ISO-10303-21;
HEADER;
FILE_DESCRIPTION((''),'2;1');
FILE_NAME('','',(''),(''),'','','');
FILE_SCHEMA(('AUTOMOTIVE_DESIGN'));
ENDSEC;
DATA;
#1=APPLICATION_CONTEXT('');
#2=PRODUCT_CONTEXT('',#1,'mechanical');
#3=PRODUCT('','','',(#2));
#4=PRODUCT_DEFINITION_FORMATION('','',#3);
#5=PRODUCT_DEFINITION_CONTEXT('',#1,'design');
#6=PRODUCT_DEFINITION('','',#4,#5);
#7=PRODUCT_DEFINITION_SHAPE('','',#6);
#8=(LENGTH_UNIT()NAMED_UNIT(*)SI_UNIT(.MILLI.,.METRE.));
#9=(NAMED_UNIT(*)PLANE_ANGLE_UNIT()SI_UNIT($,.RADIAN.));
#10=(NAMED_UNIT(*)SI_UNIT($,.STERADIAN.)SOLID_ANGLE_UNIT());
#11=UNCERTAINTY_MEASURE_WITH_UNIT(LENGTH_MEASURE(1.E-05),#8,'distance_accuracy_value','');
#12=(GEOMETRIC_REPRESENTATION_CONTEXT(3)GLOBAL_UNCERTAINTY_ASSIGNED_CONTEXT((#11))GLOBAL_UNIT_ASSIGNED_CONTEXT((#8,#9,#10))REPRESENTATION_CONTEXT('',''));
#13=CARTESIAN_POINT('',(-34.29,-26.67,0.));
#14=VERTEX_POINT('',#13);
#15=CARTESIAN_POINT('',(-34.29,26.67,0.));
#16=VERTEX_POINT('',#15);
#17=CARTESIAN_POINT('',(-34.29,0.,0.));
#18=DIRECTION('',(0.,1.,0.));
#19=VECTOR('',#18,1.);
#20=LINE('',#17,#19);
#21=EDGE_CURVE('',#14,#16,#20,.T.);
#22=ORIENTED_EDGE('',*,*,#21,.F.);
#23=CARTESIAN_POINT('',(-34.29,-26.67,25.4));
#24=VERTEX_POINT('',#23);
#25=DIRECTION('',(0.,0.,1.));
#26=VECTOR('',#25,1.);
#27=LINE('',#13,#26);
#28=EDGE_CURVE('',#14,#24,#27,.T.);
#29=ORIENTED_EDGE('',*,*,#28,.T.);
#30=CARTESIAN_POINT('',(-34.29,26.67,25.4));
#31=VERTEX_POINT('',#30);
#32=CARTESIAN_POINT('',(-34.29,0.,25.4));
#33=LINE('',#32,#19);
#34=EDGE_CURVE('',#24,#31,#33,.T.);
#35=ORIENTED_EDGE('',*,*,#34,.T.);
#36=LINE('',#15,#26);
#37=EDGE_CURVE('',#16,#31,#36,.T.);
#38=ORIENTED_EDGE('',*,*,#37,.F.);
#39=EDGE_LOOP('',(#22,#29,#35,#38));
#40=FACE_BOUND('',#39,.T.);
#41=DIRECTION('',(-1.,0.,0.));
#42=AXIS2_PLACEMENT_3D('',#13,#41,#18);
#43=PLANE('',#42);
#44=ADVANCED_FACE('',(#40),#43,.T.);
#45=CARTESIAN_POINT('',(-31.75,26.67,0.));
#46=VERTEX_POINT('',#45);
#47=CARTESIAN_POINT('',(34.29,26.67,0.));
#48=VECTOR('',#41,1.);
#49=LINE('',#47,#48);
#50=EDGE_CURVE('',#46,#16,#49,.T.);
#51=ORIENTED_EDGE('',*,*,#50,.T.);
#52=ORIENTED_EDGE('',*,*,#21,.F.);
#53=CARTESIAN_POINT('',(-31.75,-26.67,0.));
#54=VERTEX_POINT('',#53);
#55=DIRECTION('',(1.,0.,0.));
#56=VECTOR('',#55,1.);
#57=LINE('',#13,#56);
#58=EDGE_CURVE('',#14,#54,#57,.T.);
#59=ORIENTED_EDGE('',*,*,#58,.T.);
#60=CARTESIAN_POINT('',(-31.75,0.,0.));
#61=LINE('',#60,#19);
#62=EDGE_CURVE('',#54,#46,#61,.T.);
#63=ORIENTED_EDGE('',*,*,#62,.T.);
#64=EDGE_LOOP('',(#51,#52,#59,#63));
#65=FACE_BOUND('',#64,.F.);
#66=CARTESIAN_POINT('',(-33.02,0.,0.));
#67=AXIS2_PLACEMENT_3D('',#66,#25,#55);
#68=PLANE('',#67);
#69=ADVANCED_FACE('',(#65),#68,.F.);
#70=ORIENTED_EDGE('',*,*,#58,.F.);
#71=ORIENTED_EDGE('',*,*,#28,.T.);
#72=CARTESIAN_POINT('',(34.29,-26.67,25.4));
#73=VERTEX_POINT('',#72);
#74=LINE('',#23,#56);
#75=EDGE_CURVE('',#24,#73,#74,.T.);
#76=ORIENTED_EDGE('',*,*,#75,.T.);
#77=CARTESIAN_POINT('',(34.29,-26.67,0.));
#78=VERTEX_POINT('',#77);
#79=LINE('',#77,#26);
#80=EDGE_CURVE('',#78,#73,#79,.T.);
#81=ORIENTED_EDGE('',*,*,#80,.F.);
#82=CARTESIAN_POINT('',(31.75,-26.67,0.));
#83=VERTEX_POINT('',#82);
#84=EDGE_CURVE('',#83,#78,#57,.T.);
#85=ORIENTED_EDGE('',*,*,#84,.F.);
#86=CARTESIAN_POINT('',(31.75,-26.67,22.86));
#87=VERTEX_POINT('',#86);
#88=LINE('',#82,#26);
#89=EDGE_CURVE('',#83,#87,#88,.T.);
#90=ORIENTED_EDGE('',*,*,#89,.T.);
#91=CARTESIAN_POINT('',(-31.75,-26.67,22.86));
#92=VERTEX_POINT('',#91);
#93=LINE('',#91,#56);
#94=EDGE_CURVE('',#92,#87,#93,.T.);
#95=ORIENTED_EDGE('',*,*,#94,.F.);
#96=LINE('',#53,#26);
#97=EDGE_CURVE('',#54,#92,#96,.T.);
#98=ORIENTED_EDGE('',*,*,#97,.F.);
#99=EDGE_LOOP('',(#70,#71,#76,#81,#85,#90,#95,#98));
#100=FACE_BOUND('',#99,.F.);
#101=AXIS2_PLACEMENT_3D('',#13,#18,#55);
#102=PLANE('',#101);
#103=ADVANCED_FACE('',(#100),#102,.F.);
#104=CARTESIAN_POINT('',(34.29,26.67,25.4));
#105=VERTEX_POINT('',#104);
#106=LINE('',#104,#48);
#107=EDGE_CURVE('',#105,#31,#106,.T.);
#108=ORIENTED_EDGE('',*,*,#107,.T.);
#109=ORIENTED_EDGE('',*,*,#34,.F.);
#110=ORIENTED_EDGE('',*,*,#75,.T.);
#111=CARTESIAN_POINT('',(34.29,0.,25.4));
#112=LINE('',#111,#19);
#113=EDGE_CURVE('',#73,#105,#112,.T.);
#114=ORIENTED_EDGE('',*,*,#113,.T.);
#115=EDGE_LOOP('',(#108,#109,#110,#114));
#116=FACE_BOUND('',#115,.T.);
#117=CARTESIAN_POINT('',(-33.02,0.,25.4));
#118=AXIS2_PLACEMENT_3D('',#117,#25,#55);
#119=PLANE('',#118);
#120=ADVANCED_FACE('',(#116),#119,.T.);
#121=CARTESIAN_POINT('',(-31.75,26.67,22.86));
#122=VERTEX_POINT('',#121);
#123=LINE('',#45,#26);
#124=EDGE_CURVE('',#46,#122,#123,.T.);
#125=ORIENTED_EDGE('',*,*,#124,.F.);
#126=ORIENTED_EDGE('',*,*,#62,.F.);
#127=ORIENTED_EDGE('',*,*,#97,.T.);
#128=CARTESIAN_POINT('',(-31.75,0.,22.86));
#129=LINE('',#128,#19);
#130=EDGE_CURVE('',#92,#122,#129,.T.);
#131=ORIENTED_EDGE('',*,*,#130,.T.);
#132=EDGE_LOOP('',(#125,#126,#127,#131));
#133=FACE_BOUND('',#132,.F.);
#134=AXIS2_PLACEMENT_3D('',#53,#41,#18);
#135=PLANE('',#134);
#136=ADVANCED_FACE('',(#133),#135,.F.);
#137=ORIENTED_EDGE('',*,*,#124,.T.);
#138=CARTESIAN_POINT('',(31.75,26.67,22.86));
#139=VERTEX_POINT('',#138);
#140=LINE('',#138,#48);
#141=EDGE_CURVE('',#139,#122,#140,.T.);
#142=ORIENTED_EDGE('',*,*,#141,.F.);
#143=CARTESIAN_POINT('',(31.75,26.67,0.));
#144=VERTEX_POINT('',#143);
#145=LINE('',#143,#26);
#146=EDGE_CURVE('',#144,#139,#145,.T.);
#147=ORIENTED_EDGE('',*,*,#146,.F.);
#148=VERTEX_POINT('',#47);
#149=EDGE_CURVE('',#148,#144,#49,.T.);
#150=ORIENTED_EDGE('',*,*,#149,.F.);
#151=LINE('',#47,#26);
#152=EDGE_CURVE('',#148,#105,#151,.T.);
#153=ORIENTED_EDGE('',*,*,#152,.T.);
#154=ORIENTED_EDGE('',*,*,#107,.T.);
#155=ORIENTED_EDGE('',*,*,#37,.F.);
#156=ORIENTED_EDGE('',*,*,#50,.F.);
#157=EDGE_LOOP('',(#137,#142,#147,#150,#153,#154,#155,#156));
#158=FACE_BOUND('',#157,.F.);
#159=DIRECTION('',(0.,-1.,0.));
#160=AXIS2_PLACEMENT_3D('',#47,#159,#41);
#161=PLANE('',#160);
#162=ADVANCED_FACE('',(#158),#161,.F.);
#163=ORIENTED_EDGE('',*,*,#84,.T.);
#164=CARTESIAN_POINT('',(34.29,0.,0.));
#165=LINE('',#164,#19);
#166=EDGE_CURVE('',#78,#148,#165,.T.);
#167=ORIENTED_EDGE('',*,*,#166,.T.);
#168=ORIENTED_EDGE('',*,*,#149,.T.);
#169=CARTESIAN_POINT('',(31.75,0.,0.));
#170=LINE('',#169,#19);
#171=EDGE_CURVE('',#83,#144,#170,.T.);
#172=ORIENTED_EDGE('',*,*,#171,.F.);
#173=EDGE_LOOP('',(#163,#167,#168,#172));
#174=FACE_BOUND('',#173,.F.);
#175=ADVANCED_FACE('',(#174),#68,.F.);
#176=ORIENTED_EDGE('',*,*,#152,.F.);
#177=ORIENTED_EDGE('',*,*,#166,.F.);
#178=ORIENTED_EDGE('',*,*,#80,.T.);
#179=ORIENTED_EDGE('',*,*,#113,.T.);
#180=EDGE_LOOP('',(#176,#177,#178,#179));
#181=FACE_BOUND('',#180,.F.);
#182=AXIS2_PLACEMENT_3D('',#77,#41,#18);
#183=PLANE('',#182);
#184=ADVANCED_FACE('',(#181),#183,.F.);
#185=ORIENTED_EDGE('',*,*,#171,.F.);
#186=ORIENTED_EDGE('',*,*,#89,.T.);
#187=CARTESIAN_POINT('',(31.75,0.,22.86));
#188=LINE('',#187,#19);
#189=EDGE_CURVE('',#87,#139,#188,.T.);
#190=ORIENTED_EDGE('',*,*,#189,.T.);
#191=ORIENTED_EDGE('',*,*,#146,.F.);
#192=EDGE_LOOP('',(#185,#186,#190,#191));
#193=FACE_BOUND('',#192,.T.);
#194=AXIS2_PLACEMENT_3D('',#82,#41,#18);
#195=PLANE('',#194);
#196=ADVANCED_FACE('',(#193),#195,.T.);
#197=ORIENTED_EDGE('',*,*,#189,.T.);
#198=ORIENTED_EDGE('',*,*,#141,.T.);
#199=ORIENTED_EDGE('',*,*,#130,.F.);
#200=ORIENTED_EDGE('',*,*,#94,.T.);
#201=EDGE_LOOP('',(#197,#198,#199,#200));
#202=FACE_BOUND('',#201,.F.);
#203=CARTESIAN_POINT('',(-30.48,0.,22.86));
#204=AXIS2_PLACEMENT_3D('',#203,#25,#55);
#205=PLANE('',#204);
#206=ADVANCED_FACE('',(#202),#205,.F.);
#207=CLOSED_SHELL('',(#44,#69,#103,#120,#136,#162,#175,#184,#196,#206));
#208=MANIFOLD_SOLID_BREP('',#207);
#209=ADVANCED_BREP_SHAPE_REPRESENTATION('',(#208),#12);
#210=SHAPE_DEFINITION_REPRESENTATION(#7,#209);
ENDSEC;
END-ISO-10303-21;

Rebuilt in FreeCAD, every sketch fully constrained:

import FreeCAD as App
import Part
import Sketcher

V = App.Vector
Q = App.Units.Quantity

doc = App.newDocument("Part")
body = doc.addObject("PartDesign::Body", "Body")

# Sketch on XY plane
sketch1 = body.newObject("Sketcher::SketchObject", "Sketch")
sketch1.AttachmentSupport = (doc.getObject("XY_Plane"), [""])
sketch1.MapMode = "FlatFace"
sketch1.addGeometry(Part.LineSegment(V(-34, 27, 0), V(-34, -27, 0)), False)
sketch1.addGeometry(Part.LineSegment(V(-34, -27, 0), V(34, -27, 0)), False)
sketch1.addGeometry(Part.LineSegment(V(34, -27, 0), V(34, 27, 0)), False)
sketch1.addGeometry(Part.LineSegment(V(34, 27, 0), V(-34, 27, 0)), False)
sketch1.addConstraint(Sketcher.Constraint("Coincident", 0, 2, 1, 1))
sketch1.addConstraint(Sketcher.Constraint("Coincident", 1, 2, 2, 1))
sketch1.addConstraint(Sketcher.Constraint("Coincident", 2, 2, 3, 1))
sketch1.addConstraint(Sketcher.Constraint("Coincident", 3, 2, 0, 1))
sketch1.addConstraint(Sketcher.Constraint("Vertical", 0))
sketch1.addConstraint(Sketcher.Constraint("Horizontal", 1))
sketch1.addConstraint(Sketcher.Constraint("Vertical", 2))
sketch1.addConstraint(Sketcher.Constraint("Horizontal", 3))
sketch1.addConstraint(Sketcher.Constraint("Symmetric", 0, 2, 2, 2, -1, 1))
sketch1.addConstraint(Sketcher.Constraint("DistanceX", 1, 1, 1, 2, Q("2.7 in")))
sketch1.addConstraint(Sketcher.Constraint("DistanceY", 0, 2, 0, 1, Q("2.1 in")))
pad1 = body.newObject("PartDesign::Pad", "Pad")
pad1.Profile = sketch1
pad1.Length = Q("1 in")

# Sketch on XY plane
sketch2 = body.newObject("Sketcher::SketchObject", "Sketch001")
sketch2.AttachmentSupport = (doc.getObject("XY_Plane"), [""])
sketch2.MapMode = "FlatFace"
sketch2.addGeometry(Part.LineSegment(V(-31.8, 26.7, 0), V(-31.8, -26.7, 0)), False)
sketch2.addGeometry(Part.LineSegment(V(-31.8, -26.7, 0), V(-29.2, -26.7, 0)), False)
sketch2.addGeometry(Part.LineSegment(V(-29.2, -26.7, 0), V(-29.2, 26.7, 0)), False)
sketch2.addGeometry(Part.LineSegment(V(-29.2, 26.7, 0), V(-31.8, 26.7, 0)), False)
sketch2.addGeometry(Part.LineSegment(V(29.2, 26.7, 0), V(29.2, -26.7, 0)), False)
sketch2.addGeometry(Part.LineSegment(V(29.2, -26.7, 0), V(31.8, -26.7, 0)), False)
sketch2.addGeometry(Part.LineSegment(V(31.8, -26.7, 0), V(31.8, 26.7, 0)), False)
sketch2.addGeometry(Part.LineSegment(V(31.8, 26.7, 0), V(29.2, 26.7, 0)), False)
sketch2.addConstraint(Sketcher.Constraint("Coincident", 0, 2, 1, 1))
sketch2.addConstraint(Sketcher.Constraint("Coincident", 1, 2, 2, 1))
sketch2.addConstraint(Sketcher.Constraint("Coincident", 2, 2, 3, 1))
sketch2.addConstraint(Sketcher.Constraint("Coincident", 3, 2, 0, 1))
sketch2.addConstraint(Sketcher.Constraint("Coincident", 4, 2, 5, 1))
sketch2.addConstraint(Sketcher.Constraint("Coincident", 5, 2, 6, 1))
sketch2.addConstraint(Sketcher.Constraint("Coincident", 6, 2, 7, 1))
sketch2.addConstraint(Sketcher.Constraint("Coincident", 7, 2, 4, 1))
sketch2.addConstraint(Sketcher.Constraint("Vertical", 0))
sketch2.addConstraint(Sketcher.Constraint("Horizontal", 1))
sketch2.addConstraint(Sketcher.Constraint("Vertical", 2))
sketch2.addConstraint(Sketcher.Constraint("Horizontal", 3))
sketch2.addConstraint(Sketcher.Constraint("Vertical", 4))
sketch2.addConstraint(Sketcher.Constraint("Horizontal", 5))
sketch2.addConstraint(Sketcher.Constraint("Vertical", 6))
sketch2.addConstraint(Sketcher.Constraint("Horizontal", 7))
sketch2.addConstraint(Sketcher.Constraint("Symmetric", 2, 2, 4, 2, -1, 1))
sketch2.addConstraint(Sketcher.Constraint("Symmetric", 0, 2, 6, 2, -1, 1))
sketch2.addConstraint(Sketcher.Constraint("Horizontal", 1, 2, 4, 2))
sketch2.addConstraint(Sketcher.Constraint("DistanceX", 1, 1, 1, 2, Q("0.1 in")))
sketch2.addConstraint(Sketcher.Constraint("DistanceY", 0, 2, 0, 1, Q("2.1 in")))
sketch2.addConstraint(Sketcher.Constraint("DistanceX", 1, 2, 4, 2, Q("2.3 in")))
pocket1 = body.newObject("PartDesign::Pocket", "Pocket")
pocket1.Profile = sketch2
pocket1.Length = Q("0.9 in")
pocket1.Reversed = True

# Sketch on XY plane
sketch3 = body.newObject("Sketcher::SketchObject", "Sketch002")
sketch3.AttachmentSupport = (doc.getObject("XY_Plane"), [""])
sketch3.MapMode = "FlatFace"
sketch3.addGeometry(Part.LineSegment(V(-29, 27, 0), V(-29, -27, 0)), False)
sketch3.addGeometry(Part.LineSegment(V(-29, -27, 0), V(29, -27, 0)), False)
sketch3.addGeometry(Part.LineSegment(V(29, -27, 0), V(29, 27, 0)), False)
sketch3.addGeometry(Part.LineSegment(V(29, 27, 0), V(-29, 27, 0)), False)
sketch3.addConstraint(Sketcher.Constraint("Coincident", 0, 2, 1, 1))
sketch3.addConstraint(Sketcher.Constraint("Coincident", 1, 2, 2, 1))
sketch3.addConstraint(Sketcher.Constraint("Coincident", 2, 2, 3, 1))
sketch3.addConstraint(Sketcher.Constraint("Coincident", 3, 2, 0, 1))
sketch3.addConstraint(Sketcher.Constraint("Vertical", 0))
sketch3.addConstraint(Sketcher.Constraint("Horizontal", 1))
sketch3.addConstraint(Sketcher.Constraint("Vertical", 2))
sketch3.addConstraint(Sketcher.Constraint("Horizontal", 3))
sketch3.addConstraint(Sketcher.Constraint("Symmetric", 0, 2, 2, 2, -1, 1))
sketch3.addConstraint(Sketcher.Constraint("DistanceX", 1, 1, 1, 2, Q("2.3 in")))
sketch3.addConstraint(Sketcher.Constraint("DistanceY", 0, 2, 0, 1, Q("2.1 in")))
pocket2 = body.newObject("PartDesign::Pocket", "Pocket001")
pocket2.Profile = sketch3
pocket2.Length = Q("0.9 in")
pocket2.Reversed = True

doc.recompute()
